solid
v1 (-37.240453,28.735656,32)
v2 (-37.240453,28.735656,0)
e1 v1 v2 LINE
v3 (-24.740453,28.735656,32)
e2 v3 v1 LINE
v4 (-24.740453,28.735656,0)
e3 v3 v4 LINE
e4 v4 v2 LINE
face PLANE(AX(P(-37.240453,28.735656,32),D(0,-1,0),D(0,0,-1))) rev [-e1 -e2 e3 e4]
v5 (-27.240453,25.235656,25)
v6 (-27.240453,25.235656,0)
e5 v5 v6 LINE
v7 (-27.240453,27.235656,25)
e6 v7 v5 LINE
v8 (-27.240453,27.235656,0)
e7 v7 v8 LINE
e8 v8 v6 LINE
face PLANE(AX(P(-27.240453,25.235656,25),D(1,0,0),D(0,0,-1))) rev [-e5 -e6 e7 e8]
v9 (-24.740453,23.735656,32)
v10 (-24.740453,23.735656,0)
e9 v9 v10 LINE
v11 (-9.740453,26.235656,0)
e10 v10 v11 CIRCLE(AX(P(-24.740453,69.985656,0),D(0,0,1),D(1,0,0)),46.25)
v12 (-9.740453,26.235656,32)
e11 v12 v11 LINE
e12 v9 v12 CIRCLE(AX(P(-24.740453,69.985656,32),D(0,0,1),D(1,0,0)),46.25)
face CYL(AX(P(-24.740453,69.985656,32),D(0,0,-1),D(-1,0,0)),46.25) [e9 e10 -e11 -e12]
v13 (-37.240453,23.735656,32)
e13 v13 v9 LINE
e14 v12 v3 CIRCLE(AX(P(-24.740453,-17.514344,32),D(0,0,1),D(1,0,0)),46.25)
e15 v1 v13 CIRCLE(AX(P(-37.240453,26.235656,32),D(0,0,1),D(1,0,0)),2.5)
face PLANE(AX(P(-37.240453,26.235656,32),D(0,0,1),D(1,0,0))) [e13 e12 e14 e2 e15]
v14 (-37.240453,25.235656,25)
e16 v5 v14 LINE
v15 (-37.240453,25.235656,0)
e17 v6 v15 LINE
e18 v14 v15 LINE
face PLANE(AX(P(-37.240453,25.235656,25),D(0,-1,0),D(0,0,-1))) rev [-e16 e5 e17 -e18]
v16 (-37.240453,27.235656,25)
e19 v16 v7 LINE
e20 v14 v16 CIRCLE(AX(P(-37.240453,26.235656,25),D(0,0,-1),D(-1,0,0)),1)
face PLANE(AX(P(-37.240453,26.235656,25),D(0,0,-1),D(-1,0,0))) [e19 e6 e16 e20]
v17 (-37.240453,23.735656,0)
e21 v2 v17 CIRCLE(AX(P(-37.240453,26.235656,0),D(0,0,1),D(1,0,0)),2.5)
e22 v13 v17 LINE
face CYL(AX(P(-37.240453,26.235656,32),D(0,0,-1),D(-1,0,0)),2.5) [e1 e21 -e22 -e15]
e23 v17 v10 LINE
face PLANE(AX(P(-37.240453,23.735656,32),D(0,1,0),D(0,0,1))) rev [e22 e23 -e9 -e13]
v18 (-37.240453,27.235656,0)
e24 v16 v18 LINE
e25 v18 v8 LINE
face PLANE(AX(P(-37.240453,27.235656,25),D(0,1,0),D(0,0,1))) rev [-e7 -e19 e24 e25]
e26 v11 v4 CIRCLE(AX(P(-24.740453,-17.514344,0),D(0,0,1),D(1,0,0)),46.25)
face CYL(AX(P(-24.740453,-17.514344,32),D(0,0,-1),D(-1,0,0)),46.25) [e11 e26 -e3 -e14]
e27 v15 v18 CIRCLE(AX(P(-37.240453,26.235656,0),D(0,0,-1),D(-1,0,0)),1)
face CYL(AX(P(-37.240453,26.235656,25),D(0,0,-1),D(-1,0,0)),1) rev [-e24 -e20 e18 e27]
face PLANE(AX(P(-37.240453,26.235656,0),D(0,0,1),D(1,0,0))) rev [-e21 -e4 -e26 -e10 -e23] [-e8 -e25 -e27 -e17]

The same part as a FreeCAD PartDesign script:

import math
import FreeCAD as App
import Part
import Sketcher
from FreeCAD import Vector
Q = App.Units.Quantity

doc = App.newDocument("Part")
body = doc.addObject("PartDesign::Body", "Body")

# Sketch on XY plane
sketch1 = doc.addObject("Sketcher::SketchObject", "Sketch")
body.addObject(sketch1)
sketch1.AttachmentSupport = (doc.XY_Plane, [""])
sketch1.MapMode = "FlatFace"
sketch1.addGeometry(Part.LineSegment(Vector(-24.7, 28.7, 0), Vector(-37.2, 28.7, 0)), False)
sketch1.addGeometry(Part.ArcOfCircle(Part.Circle(Vector(-37.2, 26.2, 0), Vector(0, 0, 1), 2.5), math.radians(90), math.radians(270)), False)
sketch1.addGeometry(Part.LineSegment(Vector(-37.2, 23.7, 0), Vector(-24.7, 23.7, 0)), False)
sketch1.addGeometry(Part.ArcOfCircle(Part.Circle(Vector(-24.7, 70, 0), Vector(0, 0, 1), 46.3), math.radians(-90), math.radians(-71.08)), False)
sketch1.addGeometry(Part.ArcOfCircle(Part.Circle(Vector(-24.7, -17.5, 0), Vector(0, 0, 1), 46.3), math.radians(71.08), math.radians(90)), False)
sketch1.addConstraint(Sketcher.Constraint("Tangent", 0, 2, 1, 1))
sketch1.addConstraint(Sketcher.Constraint("Tangent", 1, 2, 2, 1))
sketch1.addConstraint(Sketcher.Constraint("Tangent", 2, 2, 3, 1))
sketch1.addConstraint(Sketcher.Constraint("Coincident", 3, 2, 4, 1))
sketch1.addConstraint(Sketcher.Constraint("Tangent", 4, 2, 0, 1))
sketch1.addConstraint(Sketcher.Constraint("Horizontal", 0))
sketch1.addConstraint(Sketcher.Constraint("Horizontal", 2))
sketch1.addConstraint(Sketcher.Constraint("Equal", 3, 4))
sketch1.addConstraint(Sketcher.Constraint("Horizontal", 1, 3, 3, 2))
sketch1.addConstraint(Sketcher.Constraint("Radius", 1, Q("2.5 mm")))
sketch1.addConstraint(Sketcher.Constraint("Radius", 3, Q("46.25 mm")))
sketch1.addConstraint(Sketcher.Constraint("DistanceX", 0, 2, 0, 1, Q("12.5 mm")))
sketch1.addConstraint(Sketcher.Constraint("DistanceX", 1, 3, -1, 1, Q("37.240453 mm")))
sketch1.addConstraint(Sketcher.Constraint("DistanceY", -1, 1, 1, 3, Q("26.235656 mm")))
pad1 = doc.addObject("PartDesign::Pad", "Pad")
body.addObject(pad1)
pad1.Profile = sketch1
pad1.Length = 32

# Sketch on XY plane
sketch2 = doc.addObject("Sketcher::SketchObject", "Sketch001")
body.addObject(sketch2)
sketch2.AttachmentSupport = (doc.XY_Plane, [""])
sketch2.MapMode = "FlatFace"
sketch2.addGeometry(Part.LineSegment(Vector(-27.2, 25.2, 0), Vector(-37.2, 25.2, 0)), False)
sketch2.addGeometry(Part.ArcOfCircle(Part.Circle(Vector(-37.2, 26.2, 0), Vector(0, 0, 1), 1), math.radians(90), math.radians(270)), False)
sketch2.addGeometry(Part.LineSegment(Vector(-37.2, 27.2, 0), Vector(-27.2, 27.2, 0)), False)
sketch2.addGeometry(Part.LineSegment(Vector(-27.2, 27.2, 0), Vector(-27.2, 25.2, 0)), False)
sketch2.addConstraint(Sketcher.Constraint("Tangent", 0, 2, 1, 2))
sketch2.addConstraint(Sketcher.Constraint("Tangent", 1, 1, 2, 1))
sketch2.addConstraint(Sketcher.Constraint("Coincident", 2, 2, 3, 1))
sketch2.addConstraint(Sketcher.Constraint("Coincident", 3, 2, 0, 1))
sketch2.addConstraint(Sketcher.Constraint("Horizontal", 0))
sketch2.addConstraint(Sketcher.Constraint("Horizontal", 2))
sketch2.addConstraint(Sketcher.Constraint("Vertical", 3))
sketch2.addConstraint(Sketcher.Constraint("Radius", 1, Q("1 mm")))
sketch2.addConstraint(Sketcher.Constraint("DistanceX", 0, 2, 0, 1, Q("10 mm")))
sketch2.addConstraint(Sketcher.Constraint("DistanceX", 1, 3, -1, 1, Q("37.240453 mm")))
sketch2.addConstraint(Sketcher.Constraint("DistanceY", -1, 1, 1, 3, Q("26.235656 mm")))
pocket1 = doc.addObject("PartDesign::Pocket", "Pocket")
body.addObject(pocket1)
pocket1.Profile = sketch2
pocket1.Length = 25
pocket1.Reversed = True

doc.recompute()
